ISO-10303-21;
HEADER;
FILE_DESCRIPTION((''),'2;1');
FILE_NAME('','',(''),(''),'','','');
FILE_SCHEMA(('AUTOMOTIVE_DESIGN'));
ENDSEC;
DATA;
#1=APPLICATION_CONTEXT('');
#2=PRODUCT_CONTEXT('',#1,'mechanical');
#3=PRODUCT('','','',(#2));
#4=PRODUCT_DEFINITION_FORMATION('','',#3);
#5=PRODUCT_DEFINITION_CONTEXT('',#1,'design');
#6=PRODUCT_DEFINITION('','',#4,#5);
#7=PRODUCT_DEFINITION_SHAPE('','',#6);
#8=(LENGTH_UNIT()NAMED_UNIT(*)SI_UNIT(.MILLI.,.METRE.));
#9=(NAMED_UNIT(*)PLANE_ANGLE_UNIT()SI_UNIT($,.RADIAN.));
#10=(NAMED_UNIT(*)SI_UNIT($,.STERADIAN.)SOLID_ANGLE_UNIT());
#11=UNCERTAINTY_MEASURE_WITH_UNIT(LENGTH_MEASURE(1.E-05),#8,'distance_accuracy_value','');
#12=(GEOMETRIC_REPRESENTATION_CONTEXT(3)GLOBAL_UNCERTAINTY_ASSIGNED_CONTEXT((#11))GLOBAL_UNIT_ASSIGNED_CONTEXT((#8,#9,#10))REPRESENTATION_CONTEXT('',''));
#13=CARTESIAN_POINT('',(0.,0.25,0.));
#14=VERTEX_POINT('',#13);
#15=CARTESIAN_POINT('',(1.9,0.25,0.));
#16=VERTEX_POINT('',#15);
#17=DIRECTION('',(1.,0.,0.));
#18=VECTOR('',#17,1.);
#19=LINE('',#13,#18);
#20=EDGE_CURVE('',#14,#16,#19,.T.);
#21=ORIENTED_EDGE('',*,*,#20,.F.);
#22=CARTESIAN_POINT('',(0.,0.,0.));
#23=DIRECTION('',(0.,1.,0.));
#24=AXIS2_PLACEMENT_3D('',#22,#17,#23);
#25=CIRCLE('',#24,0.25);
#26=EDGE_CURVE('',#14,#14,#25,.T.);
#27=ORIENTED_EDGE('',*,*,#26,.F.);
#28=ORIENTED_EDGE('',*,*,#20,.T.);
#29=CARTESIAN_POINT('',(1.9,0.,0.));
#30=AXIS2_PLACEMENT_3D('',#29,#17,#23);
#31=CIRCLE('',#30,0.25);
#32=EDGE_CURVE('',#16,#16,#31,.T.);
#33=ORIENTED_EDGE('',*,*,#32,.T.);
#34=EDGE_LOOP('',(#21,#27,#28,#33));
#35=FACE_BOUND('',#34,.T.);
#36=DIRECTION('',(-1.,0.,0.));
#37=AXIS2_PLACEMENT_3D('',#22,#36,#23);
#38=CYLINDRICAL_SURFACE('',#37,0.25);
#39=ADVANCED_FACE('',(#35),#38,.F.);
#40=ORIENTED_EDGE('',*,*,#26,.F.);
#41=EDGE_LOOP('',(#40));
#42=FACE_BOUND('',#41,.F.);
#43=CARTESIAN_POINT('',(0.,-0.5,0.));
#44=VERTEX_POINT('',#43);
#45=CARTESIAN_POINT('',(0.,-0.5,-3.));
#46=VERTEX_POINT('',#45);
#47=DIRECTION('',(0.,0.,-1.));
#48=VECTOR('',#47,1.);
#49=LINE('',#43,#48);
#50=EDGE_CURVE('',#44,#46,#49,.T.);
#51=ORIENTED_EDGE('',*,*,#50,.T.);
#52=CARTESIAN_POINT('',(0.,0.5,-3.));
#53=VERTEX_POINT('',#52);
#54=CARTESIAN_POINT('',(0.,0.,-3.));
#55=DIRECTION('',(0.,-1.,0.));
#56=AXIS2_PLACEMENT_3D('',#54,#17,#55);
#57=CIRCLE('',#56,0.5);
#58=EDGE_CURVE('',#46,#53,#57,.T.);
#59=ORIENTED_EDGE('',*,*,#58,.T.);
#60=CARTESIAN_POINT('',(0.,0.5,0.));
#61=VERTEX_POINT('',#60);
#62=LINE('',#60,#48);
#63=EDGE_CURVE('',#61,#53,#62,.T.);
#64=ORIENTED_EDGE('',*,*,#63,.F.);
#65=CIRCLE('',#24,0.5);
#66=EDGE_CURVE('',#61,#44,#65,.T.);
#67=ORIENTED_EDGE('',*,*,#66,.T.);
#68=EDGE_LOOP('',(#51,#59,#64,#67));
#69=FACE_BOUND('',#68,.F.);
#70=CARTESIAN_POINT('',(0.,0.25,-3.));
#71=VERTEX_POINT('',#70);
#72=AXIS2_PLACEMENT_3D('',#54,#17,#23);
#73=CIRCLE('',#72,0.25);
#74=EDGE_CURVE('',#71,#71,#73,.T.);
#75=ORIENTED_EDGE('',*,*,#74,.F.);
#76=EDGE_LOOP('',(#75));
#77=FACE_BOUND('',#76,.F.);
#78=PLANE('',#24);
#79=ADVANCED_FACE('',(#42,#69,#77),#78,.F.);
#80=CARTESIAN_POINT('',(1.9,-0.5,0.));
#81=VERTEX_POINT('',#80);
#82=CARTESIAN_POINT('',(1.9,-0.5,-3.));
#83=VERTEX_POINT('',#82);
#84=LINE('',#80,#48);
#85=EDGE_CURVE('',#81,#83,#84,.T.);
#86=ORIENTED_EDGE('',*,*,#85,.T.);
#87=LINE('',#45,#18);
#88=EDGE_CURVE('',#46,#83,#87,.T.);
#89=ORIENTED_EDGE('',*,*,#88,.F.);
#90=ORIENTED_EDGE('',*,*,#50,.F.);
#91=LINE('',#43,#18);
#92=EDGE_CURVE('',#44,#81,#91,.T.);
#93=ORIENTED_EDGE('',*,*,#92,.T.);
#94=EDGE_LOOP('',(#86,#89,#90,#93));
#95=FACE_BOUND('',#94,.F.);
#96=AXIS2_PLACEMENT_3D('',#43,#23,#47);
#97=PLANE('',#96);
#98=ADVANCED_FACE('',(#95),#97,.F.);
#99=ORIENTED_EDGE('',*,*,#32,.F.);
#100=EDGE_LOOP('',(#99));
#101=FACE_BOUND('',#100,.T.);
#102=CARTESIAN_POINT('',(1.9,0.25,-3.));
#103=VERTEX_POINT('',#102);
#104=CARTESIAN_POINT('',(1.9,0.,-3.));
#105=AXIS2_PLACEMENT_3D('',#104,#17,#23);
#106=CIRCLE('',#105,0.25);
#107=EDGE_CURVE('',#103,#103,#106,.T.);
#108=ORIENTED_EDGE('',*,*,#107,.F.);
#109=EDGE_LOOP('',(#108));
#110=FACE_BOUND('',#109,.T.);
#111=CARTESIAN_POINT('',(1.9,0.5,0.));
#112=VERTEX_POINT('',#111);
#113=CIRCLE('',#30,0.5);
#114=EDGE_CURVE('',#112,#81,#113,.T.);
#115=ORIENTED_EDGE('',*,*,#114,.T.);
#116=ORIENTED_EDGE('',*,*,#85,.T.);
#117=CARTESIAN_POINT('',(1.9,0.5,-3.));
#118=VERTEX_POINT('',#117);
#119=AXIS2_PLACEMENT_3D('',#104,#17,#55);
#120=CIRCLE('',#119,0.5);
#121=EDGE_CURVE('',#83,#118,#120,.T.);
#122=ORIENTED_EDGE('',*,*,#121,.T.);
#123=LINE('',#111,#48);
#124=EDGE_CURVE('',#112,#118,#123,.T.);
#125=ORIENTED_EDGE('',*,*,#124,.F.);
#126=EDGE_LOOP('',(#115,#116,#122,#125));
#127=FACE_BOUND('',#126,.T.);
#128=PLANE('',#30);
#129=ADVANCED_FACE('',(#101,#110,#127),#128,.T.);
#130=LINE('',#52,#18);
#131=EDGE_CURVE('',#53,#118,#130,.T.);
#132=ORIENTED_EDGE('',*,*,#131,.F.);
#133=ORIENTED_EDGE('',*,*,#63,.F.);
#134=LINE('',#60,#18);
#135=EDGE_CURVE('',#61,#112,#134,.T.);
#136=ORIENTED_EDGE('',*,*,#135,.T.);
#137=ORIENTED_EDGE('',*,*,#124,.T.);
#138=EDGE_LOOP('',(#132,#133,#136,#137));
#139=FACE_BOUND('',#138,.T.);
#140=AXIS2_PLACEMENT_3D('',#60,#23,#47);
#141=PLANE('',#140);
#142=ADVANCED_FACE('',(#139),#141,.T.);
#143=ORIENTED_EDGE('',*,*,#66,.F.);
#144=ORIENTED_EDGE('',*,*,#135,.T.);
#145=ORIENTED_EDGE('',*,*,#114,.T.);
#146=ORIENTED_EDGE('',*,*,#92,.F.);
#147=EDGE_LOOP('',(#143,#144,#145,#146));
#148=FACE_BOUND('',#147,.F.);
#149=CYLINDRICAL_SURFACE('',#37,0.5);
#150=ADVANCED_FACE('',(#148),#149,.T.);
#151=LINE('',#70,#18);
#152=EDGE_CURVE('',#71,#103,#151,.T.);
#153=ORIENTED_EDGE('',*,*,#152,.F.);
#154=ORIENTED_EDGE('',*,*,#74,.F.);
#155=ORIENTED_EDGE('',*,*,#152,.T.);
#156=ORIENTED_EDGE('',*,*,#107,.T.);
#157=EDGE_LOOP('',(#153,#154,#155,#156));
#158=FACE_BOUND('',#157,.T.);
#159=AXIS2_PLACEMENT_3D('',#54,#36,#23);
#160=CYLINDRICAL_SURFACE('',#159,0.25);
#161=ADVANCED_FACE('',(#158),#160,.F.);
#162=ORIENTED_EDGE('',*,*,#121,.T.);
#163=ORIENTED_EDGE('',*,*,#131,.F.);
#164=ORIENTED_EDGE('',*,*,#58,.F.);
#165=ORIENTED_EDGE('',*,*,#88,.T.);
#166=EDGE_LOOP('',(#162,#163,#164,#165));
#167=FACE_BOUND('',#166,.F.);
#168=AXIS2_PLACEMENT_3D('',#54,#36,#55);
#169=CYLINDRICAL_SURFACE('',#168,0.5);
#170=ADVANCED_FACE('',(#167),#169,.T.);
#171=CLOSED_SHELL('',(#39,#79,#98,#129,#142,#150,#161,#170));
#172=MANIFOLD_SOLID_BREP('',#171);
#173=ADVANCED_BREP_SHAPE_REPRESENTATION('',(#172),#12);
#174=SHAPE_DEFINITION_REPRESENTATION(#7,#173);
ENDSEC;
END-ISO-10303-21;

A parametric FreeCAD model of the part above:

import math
import FreeCAD as App
import Part
import Sketcher
from FreeCAD import Vector
Q = App.Units.Quantity

doc = App.newDocument("Part")
body = doc.addObject("PartDesign::Body", "Body")

# Sketch on YZ plane
sketch1 = doc.addObject("Sketcher::SketchObject", "Sketch")
body.addObject(sketch1)
sketch1.AttachmentSupport = (doc.YZ_Plane, [""])
sketch1.MapMode = "FlatFace"
sketch1.addGeometry([
    Part.LineSegment(Vector(0.5, -3, 0), Vector(0.5, 0, 0)),  # 0
    Part.ArcOfCircle(Part.Circle(Vector(0, 0, 0), Vector(0, 0, 1), 0.5), math.radians(0), math.radians(180)),  # 1
    Part.LineSegment(Vector(-0.5, 0, 0), Vector(-0.5, -3, 0)),  # 2
    Part.ArcOfCircle(Part.Circle(Vector(0, -3, 0), Vector(0, 0, 1), 0.5), math.radians(180), math.radians(360)),  # 3
    Part.Circle(Vector(0, -3, 0), Vector(0, 0, 1), 0.25),  # 4
    Part.Circle(Vector(0, 0, 0), Vector(0, 0, 1), 0.25),  # 5
], False)
sketch1.addConstraint([
    Sketcher.Constraint("Tangent", 0, 2, 1, 1),
    Sketcher.Constraint("Tangent", 1, 2, 2, 1),
    Sketcher.Constraint("Tangent", 2, 2, 3, 1),
    Sketcher.Constraint("Tangent", 3, 2, 0, 1),
    Sketcher.Constraint("Vertical", 0),
    Sketcher.Constraint("Vertical", 2),
    Sketcher.Constraint("Coincident", 1, 3, -1, 1),
    Sketcher.Constraint("Coincident", 5, 3, -1, 1),
    Sketcher.Constraint("Coincident", 4, 3, 3, 3),
    Sketcher.Constraint("Equal", 4, 5),
    Sketcher.Constraint("Diameter", 4, Q("0.5 mm")),
    Sketcher.Constraint("Radius", 1, Q("0.5 mm")),
    Sketcher.Constraint("DistanceY", 0, 1, 0, 2, Q("3 mm")),
])
pad1 = doc.addObject("PartDesign::Pad", "Pad")
body.addObject(pad1)
pad1.Profile = sketch1
pad1.Length = 1.9

doc.recompute()
